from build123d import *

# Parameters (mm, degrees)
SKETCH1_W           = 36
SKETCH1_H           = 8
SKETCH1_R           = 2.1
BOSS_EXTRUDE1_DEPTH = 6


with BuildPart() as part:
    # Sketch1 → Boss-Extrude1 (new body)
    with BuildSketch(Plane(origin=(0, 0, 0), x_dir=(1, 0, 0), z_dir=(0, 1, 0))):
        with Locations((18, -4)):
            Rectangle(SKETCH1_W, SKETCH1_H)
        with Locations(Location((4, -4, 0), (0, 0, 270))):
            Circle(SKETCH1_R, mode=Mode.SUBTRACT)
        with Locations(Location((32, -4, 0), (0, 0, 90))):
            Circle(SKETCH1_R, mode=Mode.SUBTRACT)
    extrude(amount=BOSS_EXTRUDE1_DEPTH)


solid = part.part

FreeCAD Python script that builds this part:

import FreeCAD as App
import Part
import Sketcher
Q = App.Units.Quantity

doc = App.newDocument("Part")
body = doc.addObject("PartDesign::Body", "Body")

# Sketch on XZ plane
sketch1 = doc.addObject("Sketcher::SketchObject", "Sketch")
body.addObject(sketch1)
sketch1.AttachmentSupport = (doc.XZ_Plane, [""])
sketch1.MapMode = "FlatFace"
sketch1.addGeometry(Part.LineSegment(App.Vector(0, 0, 0), App.Vector(0, 8, 0)), False)
sketch1.addGeometry(Part.LineSegment(App.Vector(0, 8, 0), App.Vector(36, 8, 0)), False)
sketch1.addGeometry(Part.LineSegment(App.Vector(36, 8, 0), App.Vector(36, 0, 0)), False)
sketch1.addGeometry(Part.LineSegment(App.Vector(36, 0, 0), App.Vector(0, 0, 0)), False)
sketch1.addGeometry(Part.Circle(App.Vector(4, 4, 0), App.Vector(0, 0, 1), 2.1), False)
sketch1.addGeometry(Part.Circle(App.Vector(32, 4, 0), App.Vector(0, 0, 1), 2.1), False)
sketch1.addConstraint(Sketcher.Constraint("Coincident", 0, 2, 1, 1))
sketch1.addConstraint(Sketcher.Constraint("Coincident", 1, 2, 2, 1))
sketch1.addConstraint(Sketcher.Constraint("Coincident", 2, 2, 3, 1))
sketch1.addConstraint(Sketcher.Constraint("Coincident", 3, 2, 0, 1))
sketch1.addConstraint(Sketcher.Constraint("Vertical", 0))
sketch1.addConstraint(Sketcher.Constraint("Horizontal", 1))
sketch1.addConstraint(Sketcher.Constraint("Vertical", 2))
sketch1.addConstraint(Sketcher.Constraint("Horizontal", 3))
sketch1.addConstraint(Sketcher.Constraint("Coincident", 3, 2, -1, 1))
sketch1.addConstraint(Sketcher.Constraint("Equal", 4, 5))
sketch1.addConstraint(Sketcher.Constraint("Horizontal", 4, 3, 5, 3))
sketch1.addConstraint(Sketcher.Constraint("Diameter", 4, Q("4.2 mm")))
sketch1.addConstraint(Sketcher.Constraint("DistanceX", 1, 1, 1, 2, Q("36 mm")))
sketch1.addConstraint(Sketcher.Constraint("DistanceY", 0, 1, 0, 2, Q("8 mm")))
sketch1.addConstraint(Sketcher.Constraint("DistanceX", -1, 1, 4, 3, Q("4 mm")))
sketch1.addConstraint(Sketcher.Constraint("DistanceY", -1, 1, 4, 3, Q("4 mm")))
sketch1.addConstraint(Sketcher.Constraint("DistanceX", -1, 1, 5, 3, Q("32 mm")))
pad1 = doc.addObject("PartDesign::Pad", "Pad")
body.addObject(pad1)
pad1.Profile = sketch1
pad1.Length = 6
pad1.Reversed = True

doc.recompute()
